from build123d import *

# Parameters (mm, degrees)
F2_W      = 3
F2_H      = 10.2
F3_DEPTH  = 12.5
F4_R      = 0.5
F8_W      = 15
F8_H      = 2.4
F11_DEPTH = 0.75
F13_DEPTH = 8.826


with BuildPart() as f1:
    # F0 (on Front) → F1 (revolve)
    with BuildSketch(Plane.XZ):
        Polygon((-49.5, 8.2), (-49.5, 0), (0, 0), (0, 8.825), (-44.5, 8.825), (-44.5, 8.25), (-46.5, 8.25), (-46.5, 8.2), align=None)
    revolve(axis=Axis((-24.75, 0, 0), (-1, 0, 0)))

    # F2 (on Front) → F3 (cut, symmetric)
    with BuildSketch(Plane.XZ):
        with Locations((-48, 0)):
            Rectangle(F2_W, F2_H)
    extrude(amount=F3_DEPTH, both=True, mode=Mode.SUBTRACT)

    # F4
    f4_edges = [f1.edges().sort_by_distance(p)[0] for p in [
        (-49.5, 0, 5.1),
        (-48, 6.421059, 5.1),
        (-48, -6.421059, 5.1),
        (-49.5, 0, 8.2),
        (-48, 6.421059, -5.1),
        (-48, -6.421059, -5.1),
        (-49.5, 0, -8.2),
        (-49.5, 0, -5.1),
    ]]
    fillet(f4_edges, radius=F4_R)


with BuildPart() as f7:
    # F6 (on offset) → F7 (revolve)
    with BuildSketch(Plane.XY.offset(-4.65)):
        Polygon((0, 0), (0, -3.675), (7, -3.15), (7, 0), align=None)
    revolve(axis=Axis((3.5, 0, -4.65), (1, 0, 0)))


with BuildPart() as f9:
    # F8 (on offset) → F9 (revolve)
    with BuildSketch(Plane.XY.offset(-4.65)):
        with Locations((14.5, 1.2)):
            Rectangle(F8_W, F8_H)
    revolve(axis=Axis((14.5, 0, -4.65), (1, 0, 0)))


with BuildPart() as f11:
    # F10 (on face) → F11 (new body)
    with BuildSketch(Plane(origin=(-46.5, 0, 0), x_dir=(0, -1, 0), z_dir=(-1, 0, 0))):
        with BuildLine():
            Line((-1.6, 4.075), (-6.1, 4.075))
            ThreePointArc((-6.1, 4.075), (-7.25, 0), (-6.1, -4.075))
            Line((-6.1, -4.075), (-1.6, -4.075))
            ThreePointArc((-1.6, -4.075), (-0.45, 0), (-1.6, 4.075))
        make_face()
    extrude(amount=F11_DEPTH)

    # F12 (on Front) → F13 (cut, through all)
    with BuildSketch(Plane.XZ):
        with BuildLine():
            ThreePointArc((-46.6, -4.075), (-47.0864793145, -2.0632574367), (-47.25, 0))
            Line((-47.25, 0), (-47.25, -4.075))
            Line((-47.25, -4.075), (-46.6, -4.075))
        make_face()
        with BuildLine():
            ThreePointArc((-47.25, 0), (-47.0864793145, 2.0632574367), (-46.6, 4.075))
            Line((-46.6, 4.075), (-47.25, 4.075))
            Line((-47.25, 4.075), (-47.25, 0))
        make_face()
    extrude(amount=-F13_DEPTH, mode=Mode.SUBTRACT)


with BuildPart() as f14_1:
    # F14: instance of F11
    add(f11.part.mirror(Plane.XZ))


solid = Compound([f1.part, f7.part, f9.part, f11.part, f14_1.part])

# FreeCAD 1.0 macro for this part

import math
import FreeCAD as App
import Part
import Sketcher
from FreeCAD import Vector


def edges_at(feature, points):
    """Names of the edges that pass closest to the given points."""
    edges = feature.Shape.Edges
    near = lambda p: min(range(len(edges)), key=lambda i: edges[i].distToShape(Part.Vertex(*p))[0])
    return sorted({f"Edge{near(p) + 1}" for p in points})

doc = App.newDocument("Part")
params = doc.addObject("Spreadsheet::Sheet", "Params")
for row, (alias, value) in enumerate([
    ("sketch1_width", "2 mm"),
    ("sketch1_width2", "3 mm"),
    ("sketch1_width3", "49.5 mm"),
    ("sketch1_height", "8.2 mm"),
    ("sketch1_height2", "0.05 mm"),
    ("revolution_angle", "360 deg"),
    ("sketch2_width", "3 mm"),
    ("sketch2_height", "10.2 mm"),
    ("pocket1_length", "25 mm"),
    ("fillet_radius", "0.5 mm"),
    ("sketch3_width", "7 mm"),
    ("sketch3_height", "3.15 mm"),
    ("revolution2_angle", "360 deg"),
    ("sketch4_width", "15 mm"),
    ("sketch4_height", "2.4 mm"),
    ("revolution3_angle", "360 deg"),
    ("sketch5_width", "4.5 mm"),
    ("pad1_length", "0.75 mm"),
    ("sketch6_width", "0.65 mm"),
], start=1):
    params.set(f"A{row}", alias)
    params.set(f"B{row}", "=" + value)
    params.setAlias(f"B{row}", alias)

body = doc.addObject("PartDesign::Body", "Body")

# Sketch on XZ plane
sketch1 = doc.addObject("Sketcher::SketchObject", "Sketch")
body.addObject(sketch1)
sketch1.AttachmentSupport = (doc.XZ_Plane, [""])
sketch1.MapMode = "FlatFace"
sketch1.addGeometry(Part.LineSegment(Vector(-49.5, 8.2, 0), Vector(-49.5, 0, 0)), False)
sketch1.addGeometry(Part.LineSegment(Vector(-49.5, 0, 0), Vector(0, 0, 0)), False)
sketch1.addGeometry(Part.LineSegment(Vector(0, 0, 0), Vector(0, 8.825, 0)), False)
sketch1.addGeometry(Part.LineSegment(Vector(0, 8.825, 0), Vector(-44.5, 8.825, 0)), False)
sketch1.addGeometry(Part.LineSegment(Vector(-44.5, 8.825, 0), Vector(-44.5, 8.25, 0)), False)
sketch1.addGeometry(Part.LineSegment(Vector(-44.5, 8.25, 0), Vector(-46.5, 8.25, 0)), False)
sketch1.addGeometry(Part.LineSegment(Vector(-46.5, 8.25, 0), Vector(-46.5, 8.2, 0)), False)
sketch1.addGeometry(Part.LineSegment(Vector(-46.5, 8.2, 0), Vector(-49.5, 8.2, 0)), False)
sketch1.addConstraint(Sketcher.Constraint("Coincident", 0, 2, 1, 1))
sketch1.addConstraint(Sketcher.Constraint("Coincident", 1, 2, 2, 1))
sketch1.addConstraint(Sketcher.Constraint("Coincident", 2, 2, 3, 1))
sketch1.addConstraint(Sketcher.Constraint("Coincident", 3, 2, 4, 1))
sketch1.addConstraint(Sketcher.Constraint("Coincident", 4, 2, 5, 1))
sketch1.addConstraint(Sketcher.Constraint("Coincident", 5, 2, 6, 1))
sketch1.addConstraint(Sketcher.Constraint("Coincident", 6, 2, 7, 1))
sketch1.addConstraint(Sketcher.Constraint("Coincident", 7, 2, 0, 1))
sketch1.addConstraint(Sketcher.Constraint("Vertical", 0))
sketch1.addConstraint(Sketcher.Constraint("Horizontal", 1))
sketch1.addConstraint(Sketcher.Constraint("Vertical", 2))
sketch1.addConstraint(Sketcher.Constraint("Horizontal", 3))
sketch1.addConstraint(Sketcher.Constraint("Vertical", 4))
sketch1.addConstraint(Sketcher.Constraint("Horizontal", 5))
sketch1.addConstraint(Sketcher.Constraint("Vertical", 6))
sketch1.addConstraint(Sketcher.Constraint("Horizontal", 7))
sketch1.addConstraint(Sketcher.Constraint("Coincident", 1, 2, -1, 1))
sketch1.addConstraint(Sketcher.Constraint("DistanceX", 5, 2, 5, 1, 2.0))
sketch1.addConstraint(Sketcher.Constraint("DistanceX", 7, 2, 7, 1, 3.0))
sketch1.addConstraint(Sketcher.Constraint("DistanceX", 1, 1, 1, 2, 49.5))
sketch1.addConstraint(Sketcher.Constraint("DistanceY", 0, 2, 0, 1, 8.2))
sketch1.addConstraint(Sketcher.Constraint("DistanceY", 6, 2, 6, 1, 0.05))
sketch1.addConstraint(Sketcher.Constraint("DistanceY", 2, 1, 2, 2, 8.825))
sketch1.setExpression("Constraints[17]", "Params.sketch1_width")
sketch1.setExpression("Constraints[18]", "Params.sketch1_width2")
sketch1.setExpression("Constraints[19]", "Params.sketch1_width3")
sketch1.setExpression("Constraints[20]", "Params.sketch1_height")
sketch1.setExpression("Constraints[21]", "Params.sketch1_height2")
revolution = doc.addObject("PartDesign::Revolution", "Revolution")
body.addObject(revolution)
revolution.Profile = sketch1
revolution.ReferenceAxis = (sketch1, ["H_Axis"])
revolution.setExpression("Angle", "Params.revolution_angle")

# Sketch on XZ plane
sketch2 = doc.addObject("Sketcher::SketchObject", "Sketch001")
body.addObject(sketch2)
sketch2.AttachmentSupport = (doc.XZ_Plane, [""])
sketch2.MapMode = "FlatFace"
sketch2.addGeometry(Part.LineSegment(Vector(-49.5, 5.1, 0), Vector(-49.5, -5.1, 0)), False)
sketch2.addGeometry(Part.LineSegment(Vector(-49.5, -5.1, 0), Vector(-46.5, -5.1, 0)), False)
sketch2.addGeometry(Part.LineSegment(Vector(-46.5, -5.1, 0), Vector(-46.5, 5.1, 0)), False)
sketch2.addGeometry(Part.LineSegment(Vector(-46.5, 5.1, 0), Vector(-49.5, 5.1, 0)), False)
sketch2.addConstraint(Sketcher.Constraint("Coincident", 0, 2, 1, 1))
sketch2.addConstraint(Sketcher.Constraint("Coincident", 1, 2, 2, 1))
sketch2.addConstraint(Sketcher.Constraint("Coincident", 2, 2, 3, 1))
sketch2.addConstraint(Sketcher.Constraint("Coincident", 3, 2, 0, 1))
sketch2.addConstraint(Sketcher.Constraint("Vertical", 0))
sketch2.addConstraint(Sketcher.Constraint("Horizontal", 1))
sketch2.addConstraint(Sketcher.Constraint("Vertical", 2))
sketch2.addConstraint(Sketcher.Constraint("Horizontal", 3))
sketch2.addConstraint(Sketcher.Constraint("DistanceX", 1, 1, 1, 2, 3.0))
sketch2.addConstraint(Sketcher.Constraint("DistanceY", 0, 2, 0, 1, 10.2))
sketch2.addConstraint(Sketcher.Constraint("DistanceX", 0, 2, -1, 1, 49.5))
sketch2.addConstraint(Sketcher.Constraint("DistanceY", 0, 2, -1, 1, 5.1))
sketch2.setExpression("Constraints[8]", "Params.sketch2_width")
sketch2.setExpression("Constraints[9]", "Params.sketch2_height")
pocket1 = doc.addObject("PartDesign::Pocket", "Pocket")
body.addObject(pocket1)
pocket1.Profile = sketch2
pocket1.setExpression("Length", "Params.pocket1_length")
pocket1.Midplane = True
doc.recompute()

fillet = doc.addObject("PartDesign::Fillet", "Fillet")
body.addObject(fillet)
fillet.Base = (pocket1, edges_at(pocket1, [
    (-49.5, 0, 5.1),
    (-48, 6.421, 5.1),
    (-48, -6.421, 5.1),
    (-49.5, 0, 8.2),
    (-48, 6.421, -5.1),
    (-48, -6.421, -5.1),
    (-49.5, 0, -8.2),
    (-49.5, 0, -5.1),
]))
fillet.setExpression("Radius", "Params.fillet_radius")
body2 = doc.addObject("PartDesign::Body", "Body001")

# Sketch on XY plane
sketch3 = doc.addObject("Sketcher::SketchObject", "Sketch002")
body2.addObject(sketch3)
sketch3.AttachmentSupport = (doc.getObject("XY_Plane001"), [""])
sketch3.MapMode = "FlatFace"
sketch3.AttachmentOffset = App.Placement(Vector(0, 0, -4.65), App.Rotation())
sketch3.addGeometry(Part.LineSegment(Vector(0, 0, 0), Vector(0, -3.675, 0)), False)
sketch3.addGeometry(Part.LineSegment(Vector(0, -3.675, 0), Vector(7, -3.15, 0)), False)
sketch3.addGeometry(Part.LineSegment(Vector(7, -3.15, 0), Vector(7, 0, 0)), False)
sketch3.addGeometry(Part.LineSegment(Vector(7, 0, 0), Vector(0, 0, 0)), False)
sketch3.addConstraint(Sketcher.Constraint("Coincident", 0, 2, 1, 1))
sketch3.addConstraint(Sketcher.Constraint("Coincident", 1, 2, 2, 1))
sketch3.addConstraint(Sketcher.Constraint("Coincident", 2, 2, 3, 1))
sketch3.addConstraint(Sketcher.Constraint("Coincident", 3, 2, 0, 1))
sketch3.addConstraint(Sketcher.Constraint("Vertical", 0))
sketch3.addConstraint(Sketcher.Constraint("Vertical", 2))
sketch3.addConstraint(Sketcher.Constraint("Horizontal", 3))
sketch3.addConstraint(Sketcher.Constraint("Coincident", 3, 2, -1, 1))
sketch3.addConstraint(Sketcher.Constraint("DistanceX", 3, 2, 3, 1, 7.0))
sketch3.addConstraint(Sketcher.Constraint("DistanceY", 2, 1, 2, 2, 3.15))
sketch3.addConstraint(Sketcher.Constraint("DistanceY", 0, 2, 0, 1, 3.675))
sketch3.setExpression("Constraints[8]", "Params.sketch3_width")
sketch3.setExpression("Constraints[9]", "Params.sketch3_height")
revolution2 = doc.addObject("PartDesign::Revolution", "Revolution001")
body2.addObject(revolution2)
revolution2.Profile = sketch3
revolution2.ReferenceAxis = (sketch3, ["H_Axis"])
revolution2.setExpression("Angle", "Params.revolution2_angle")
body3 = doc.addObject("PartDesign::Body", "Body002")

# Sketch on XY plane
sketch4 = doc.addObject("Sketcher::SketchObject", "Sketch003")
body3.addObject(sketch4)
sketch4.AttachmentSupport = (doc.getObject("XY_Plane002"), [""])
sketch4.MapMode = "FlatFace"
sketch4.AttachmentOffset = App.Placement(Vector(0, 0, -4.65), App.Rotation())
sketch4.addGeometry(Part.LineSegment(Vector(7, 2.4, 0), Vector(7, 0, 0)), False)
sketch4.addGeometry(Part.LineSegment(Vector(7, 0, 0), Vector(22, 0, 0)), False)
sketch4.addGeometry(Part.LineSegment(Vector(22, 0, 0), Vector(22, 2.4, 0)), False)
sketch4.addGeometry(Part.LineSegment(Vector(22, 2.4, 0), Vector(7, 2.4, 0)), False)
sketch4.addConstraint(Sketcher.Constraint("Coincident", 0, 2, 1, 1))
sketch4.addConstraint(Sketcher.Constraint("Coincident", 1, 2, 2, 1))
sketch4.addConstraint(Sketcher.Constraint("Coincident", 2, 2, 3, 1))
sketch4.addConstraint(Sketcher.Constraint("Coincident", 3, 2, 0, 1))
sketch4.addConstraint(Sketcher.Constraint("Vertical", 0))
sketch4.addConstraint(Sketcher.Constraint("Horizontal", 1))
sketch4.addConstraint(Sketcher.Constraint("Vertical", 2))
sketch4.addConstraint(Sketcher.Constraint("Horizontal", 3))
sketch4.addConstraint(Sketcher.Constraint("PointOnObject", 0, 2, -1))
sketch4.addConstraint(Sketcher.Constraint("DistanceX", 1, 1, 1, 2, 15.0))
sketch4.addConstraint(Sketcher.Constraint("DistanceY", 0, 2, 0, 1, 2.4))
sketch4.addConstraint(Sketcher.Constraint("DistanceX", -1, 1, 0, 2, 7.0))
sketch4.setExpression("Constraints[9]", "Params.sketch4_width")
sketch4.setExpression("Constraints[10]", "Params.sketch4_height")
revolution3 = doc.addObject("PartDesign::Revolution", "Revolution002")
body3.addObject(revolution3)
revolution3.Profile = sketch4
revolution3.ReferenceAxis = (sketch4, ["H_Axis"])
revolution3.setExpression("Angle", "Params.revolution3_angle")
body4 = doc.addObject("PartDesign::Body", "Body003")

# Sketch on YZ plane
sketch5 = doc.addObject("Sketcher::SketchObject", "Sketch004")
body4.addObject(sketch5)
sketch5.AttachmentSupport = (doc.getObject("YZ_Plane003"), [""])
sketch5.MapMode = "FlatFace"
sketch5.AttachmentOffset = App.Placement(Vector(0, 0, -46.5), App.Rotation())
sketch5.addGeometry(Part.LineSegment(Vector(1.6, 4.075, 0), Vector(6.1, 4.075, 0)), False)
sketch5.addGeometry(Part.ArcOfCircle(Part.Circle(Vector(-0.544837, 0, 0), Vector(0, 0, 1), 7.794837), math.radians(-31.519044), math.radians(31.519044)), False)
sketch5.addGeometry(Part.LineSegment(Vector(6.1, -4.075, 0), Vector(1.6, -4.075, 0)), False)
sketch5.addGeometry(Part.ArcOfCircle(Part.Circle(Vector(8.244837, 0, 0), Vector(0, 0, 1), 7.794837), math.radians(148.480956), math.radians(211.519044)), False)
sketch5.addConstraint(Sketcher.Constraint("Coincident", 0, 2, 1, 2))
sketch5.addConstraint(Sketcher.Constraint("Coincident", 1, 1, 2, 1))
sketch5.addConstraint(Sketcher.Constraint("Coincident", 2, 2, 3, 2))
sketch5.addConstraint(Sketcher.Constraint("Coincident", 3, 1, 0, 1))
sketch5.addConstraint(Sketcher.Constraint("Horizontal", 0))
sketch5.addConstraint(Sketcher.Constraint("Horizontal", 2))
sketch5.addConstraint(Sketcher.Constraint("Equal", 1, 3))
sketch5.addConstraint(Sketcher.Constraint("Symmetric", 0, 2, 1, 1, -1))
sketch5.addConstraint(Sketcher.Constraint("PointOnObject", 3, 3, -1))
sketch5.addConstraint(Sketcher.Constraint("DistanceX", 0, 1, 0, 2, 4.5))
sketch5.addConstraint(Sketcher.Constraint("DistanceX", -1, 1, 0, 2, 6.1))
sketch5.addConstraint(Sketcher.Constraint("DistanceY", 1, 1, 0, 2, 8.15))
sketch5.addConstraint(Sketcher.Constraint("Radius", 1, 7.794837))
sketch5.setExpression("Constraints[9]", "Params.sketch5_width")
pad1 = doc.addObject("PartDesign::Pad", "Pad")
body4.addObject(pad1)
pad1.Profile = sketch5
pad1.setExpression("Length", "Params.pad1_length")
pad1.Reversed = True

# Sketch on XZ plane
sketch6 = doc.addObject("Sketcher::SketchObject", "Sketch005")
body4.addObject(sketch6)
sketch6.AttachmentSupport = (doc.getObject("XZ_Plane003"), [""])
sketch6.MapMode = "FlatFace"
sketch6.addGeometry(Part.ArcOfCircle(Part.Circle(Vector(-34.151442, 0, 0), Vector(0, 0, 1), 13.098558), math.radians(-180), math.radians(-161.874288)), False)
sketch6.addGeometry(Part.LineSegment(Vector(-47.25, 0, 0), Vector(-47.25, -4.075, 0)), False)
sketch6.addGeometry(Part.LineSegment(Vector(-47.25, -4.075, 0), Vector(-46.6, -4.075, 0)), False)
sketch6.addGeometry(Part.ArcOfCircle(Part.Circle(Vector(-34.151442, 0, 0), Vector(0, 0, 1), 13.098558), math.radians(161.874288), math.radians(180)), False)
sketch6.addGeometry(Part.LineSegment(Vector(-46.6, 4.075, 0), Vector(-47.25, 4.075, 0)), False)
sketch6.addGeometry(Part.LineSegment(Vector(-47.25, 4.075, 0), Vector(-47.25, 0, 0)), False)
sketch6.addConstraint(Sketcher.Constraint("Tangent", 0, 1, 1, 1))
sketch6.addConstraint(Sketcher.Constraint("Coincident", 1, 2, 2, 1))
sketch6.addConstraint(Sketcher.Constraint("Coincident", 2, 2, 0, 2))
sketch6.addConstraint(Sketcher.Constraint("Coincident", 3, 1, 4, 1))
sketch6.addConstraint(Sketcher.Constraint("Coincident", 4, 2, 5, 1))
sketch6.addConstraint(Sketcher.Constraint("Tangent", 5, 2, 3, 2))
sketch6.addConstraint(Sketcher.Constraint("Vertical", 1))
sketch6.addConstraint(Sketcher.Constraint("Horizontal", 2))
sketch6.addConstraint(Sketcher.Constraint("Horizontal", 4))
sketch6.addConstraint(Sketcher.Constraint("Vertical", 5))
sketch6.addConstraint(Sketcher.Constraint("Coincident", 3, 3, 0, 3))
sketch6.addConstraint(Sketcher.Constraint("Equal", 0, 3))
sketch6.addConstraint(Sketcher.Constraint("Symmetric", 2, 2, 3, 1, -1))
sketch6.addConstraint(Sketcher.Constraint("DistanceX", 2, 1, 2, 2, 0.65))
sketch6.addConstraint(Sketcher.Constraint("DistanceX", 2, 2, -1, 1, 46.6))
sketch6.addConstraint(Sketcher.Constraint("DistanceY", 1, 2, 1, 1, 4.075))
sketch6.setExpression("Constraints[13]", "Params.sketch6_width")
pocket2 = doc.addObject("PartDesign::Pocket", "Pocket001")
body4.addObject(pocket2)
pocket2.Profile = sketch6
pocket2.Type = "ThroughAll"
body5 = doc.addObject("PartDesign::Body", "Body004")
doc.recompute()

mirroring = doc.addObject("Part::Mirroring", "Mirroring")
mirroring.Source = body4
mirroring.Base = Vector(0, 0, 0)
mirroring.Normal = Vector(0, -1, 0)
body5.BaseFeature = mirroring
doc.recompute()
mirroring.Visibility = False

doc.recompute()
